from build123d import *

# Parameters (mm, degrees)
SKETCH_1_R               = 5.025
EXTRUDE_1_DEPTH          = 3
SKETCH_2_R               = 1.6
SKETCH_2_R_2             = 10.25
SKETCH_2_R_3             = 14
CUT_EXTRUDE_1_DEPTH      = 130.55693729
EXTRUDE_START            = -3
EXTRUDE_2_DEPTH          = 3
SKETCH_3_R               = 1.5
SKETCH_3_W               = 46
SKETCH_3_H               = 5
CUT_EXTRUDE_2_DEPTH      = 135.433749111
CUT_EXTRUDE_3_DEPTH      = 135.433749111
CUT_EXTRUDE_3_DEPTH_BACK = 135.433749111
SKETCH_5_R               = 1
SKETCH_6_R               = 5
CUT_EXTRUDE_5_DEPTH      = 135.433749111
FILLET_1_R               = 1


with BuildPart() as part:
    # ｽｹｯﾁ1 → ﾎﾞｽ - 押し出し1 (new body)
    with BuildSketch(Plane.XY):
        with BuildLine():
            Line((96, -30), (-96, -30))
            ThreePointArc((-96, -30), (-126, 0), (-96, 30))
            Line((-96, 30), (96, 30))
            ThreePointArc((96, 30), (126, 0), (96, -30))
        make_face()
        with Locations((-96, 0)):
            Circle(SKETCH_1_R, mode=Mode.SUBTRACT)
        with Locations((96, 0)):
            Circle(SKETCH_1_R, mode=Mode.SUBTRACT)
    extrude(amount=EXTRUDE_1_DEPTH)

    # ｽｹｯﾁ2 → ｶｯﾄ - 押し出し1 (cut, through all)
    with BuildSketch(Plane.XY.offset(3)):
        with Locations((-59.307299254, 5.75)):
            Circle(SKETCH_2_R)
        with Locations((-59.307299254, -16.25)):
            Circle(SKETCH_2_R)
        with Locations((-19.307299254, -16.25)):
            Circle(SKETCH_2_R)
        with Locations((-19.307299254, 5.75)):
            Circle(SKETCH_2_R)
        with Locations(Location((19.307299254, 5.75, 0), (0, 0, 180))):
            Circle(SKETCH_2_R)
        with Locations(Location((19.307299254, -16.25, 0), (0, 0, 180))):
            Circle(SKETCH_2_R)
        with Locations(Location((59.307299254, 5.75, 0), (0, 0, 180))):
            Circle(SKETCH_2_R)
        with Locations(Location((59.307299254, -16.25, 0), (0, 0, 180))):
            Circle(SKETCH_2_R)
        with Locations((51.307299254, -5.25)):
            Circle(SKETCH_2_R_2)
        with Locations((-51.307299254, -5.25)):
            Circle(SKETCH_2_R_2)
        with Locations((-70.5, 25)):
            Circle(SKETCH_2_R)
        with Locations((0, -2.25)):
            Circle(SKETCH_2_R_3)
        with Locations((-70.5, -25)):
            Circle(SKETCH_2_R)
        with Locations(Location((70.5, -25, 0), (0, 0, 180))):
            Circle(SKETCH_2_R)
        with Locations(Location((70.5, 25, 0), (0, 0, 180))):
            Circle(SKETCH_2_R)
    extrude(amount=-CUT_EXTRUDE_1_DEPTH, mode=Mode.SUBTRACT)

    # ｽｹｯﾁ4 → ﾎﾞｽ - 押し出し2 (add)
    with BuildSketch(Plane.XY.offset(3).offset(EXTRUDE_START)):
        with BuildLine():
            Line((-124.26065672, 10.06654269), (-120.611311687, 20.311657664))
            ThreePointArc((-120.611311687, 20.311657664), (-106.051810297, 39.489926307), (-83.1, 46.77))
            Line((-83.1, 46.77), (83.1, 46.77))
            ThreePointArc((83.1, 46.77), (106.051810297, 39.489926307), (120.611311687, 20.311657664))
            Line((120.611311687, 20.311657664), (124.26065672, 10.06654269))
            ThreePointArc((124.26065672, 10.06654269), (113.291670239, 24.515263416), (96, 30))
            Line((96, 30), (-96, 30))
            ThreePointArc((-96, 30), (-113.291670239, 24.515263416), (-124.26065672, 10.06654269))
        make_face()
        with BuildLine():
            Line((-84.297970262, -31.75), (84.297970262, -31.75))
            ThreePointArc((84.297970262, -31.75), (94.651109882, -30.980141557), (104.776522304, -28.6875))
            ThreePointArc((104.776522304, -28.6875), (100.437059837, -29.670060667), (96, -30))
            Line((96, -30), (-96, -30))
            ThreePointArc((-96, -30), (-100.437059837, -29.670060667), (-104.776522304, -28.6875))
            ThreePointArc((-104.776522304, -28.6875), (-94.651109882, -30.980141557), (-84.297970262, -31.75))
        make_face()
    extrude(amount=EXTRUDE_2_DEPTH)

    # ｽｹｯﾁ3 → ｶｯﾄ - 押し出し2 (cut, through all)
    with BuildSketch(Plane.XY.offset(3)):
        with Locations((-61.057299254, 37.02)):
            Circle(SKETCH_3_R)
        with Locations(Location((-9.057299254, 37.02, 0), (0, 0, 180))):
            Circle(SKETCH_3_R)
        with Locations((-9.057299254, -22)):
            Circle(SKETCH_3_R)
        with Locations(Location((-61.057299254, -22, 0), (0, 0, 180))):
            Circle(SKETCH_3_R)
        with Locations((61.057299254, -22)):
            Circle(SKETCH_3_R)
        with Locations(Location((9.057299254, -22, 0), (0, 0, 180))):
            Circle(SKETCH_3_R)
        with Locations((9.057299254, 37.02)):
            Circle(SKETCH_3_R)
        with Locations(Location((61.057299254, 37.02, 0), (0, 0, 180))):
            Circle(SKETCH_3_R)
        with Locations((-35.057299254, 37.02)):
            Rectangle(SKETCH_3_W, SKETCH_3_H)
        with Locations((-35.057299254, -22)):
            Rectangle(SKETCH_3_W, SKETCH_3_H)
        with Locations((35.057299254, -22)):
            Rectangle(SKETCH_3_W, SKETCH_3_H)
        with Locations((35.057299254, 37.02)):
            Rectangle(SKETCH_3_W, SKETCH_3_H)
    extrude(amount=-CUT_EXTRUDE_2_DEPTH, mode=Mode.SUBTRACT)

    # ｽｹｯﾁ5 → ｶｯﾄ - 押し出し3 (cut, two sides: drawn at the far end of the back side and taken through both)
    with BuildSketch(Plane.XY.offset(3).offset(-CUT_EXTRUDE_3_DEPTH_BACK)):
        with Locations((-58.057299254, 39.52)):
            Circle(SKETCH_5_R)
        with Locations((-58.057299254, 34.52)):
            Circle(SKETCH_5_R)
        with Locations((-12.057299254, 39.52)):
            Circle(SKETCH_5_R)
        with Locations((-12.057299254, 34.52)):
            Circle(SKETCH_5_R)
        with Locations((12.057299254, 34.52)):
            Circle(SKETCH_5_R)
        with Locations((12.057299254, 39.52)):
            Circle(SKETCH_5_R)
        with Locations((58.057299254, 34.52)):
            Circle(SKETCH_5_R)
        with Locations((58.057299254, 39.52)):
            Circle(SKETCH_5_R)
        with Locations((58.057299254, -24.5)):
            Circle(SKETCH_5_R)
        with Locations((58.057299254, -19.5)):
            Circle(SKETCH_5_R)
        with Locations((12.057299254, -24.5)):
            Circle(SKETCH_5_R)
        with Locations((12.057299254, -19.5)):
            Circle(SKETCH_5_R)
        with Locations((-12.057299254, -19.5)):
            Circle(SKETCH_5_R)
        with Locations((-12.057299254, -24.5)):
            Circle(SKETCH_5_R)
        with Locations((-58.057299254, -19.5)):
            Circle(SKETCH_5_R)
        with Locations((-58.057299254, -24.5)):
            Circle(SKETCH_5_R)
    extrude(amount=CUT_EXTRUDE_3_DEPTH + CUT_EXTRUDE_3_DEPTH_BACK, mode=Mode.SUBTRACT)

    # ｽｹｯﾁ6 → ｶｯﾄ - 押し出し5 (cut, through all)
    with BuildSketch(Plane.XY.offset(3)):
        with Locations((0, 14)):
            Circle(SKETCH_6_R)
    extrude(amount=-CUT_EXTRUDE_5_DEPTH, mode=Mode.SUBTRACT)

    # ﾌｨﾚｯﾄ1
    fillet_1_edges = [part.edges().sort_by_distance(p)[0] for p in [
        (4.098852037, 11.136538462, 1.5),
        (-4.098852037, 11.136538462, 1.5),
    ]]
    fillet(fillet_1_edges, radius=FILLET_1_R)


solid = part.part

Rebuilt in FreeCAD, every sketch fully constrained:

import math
import FreeCAD as App
import Part
import Sketcher
from FreeCAD import Vector


def edges_at(feature, points):
    """Names of the edges that pass closest to the given points."""
    edges = feature.Shape.Edges
    near = lambda p: min(range(len(edges)), key=lambda i: edges[i].distToShape(Part.Vertex(*p))[0])
    return sorted({f"Edge{near(p) + 1}" for p in points})

doc = App.newDocument("Part")
params = doc.addObject("Spreadsheet::Sheet", "Params")
for row, (alias, value) in enumerate([
    ("sketch1_radius", "30 mm"),
    ("sketch1_diameter", "10.05 mm"),
    ("sketch1_width", "192 mm"),
    ("pad1_length", "3 mm"),
    ("sketch2_diameter", "28 mm"),
    ("sketch2_diameter2", "3.2 mm"),
    ("sketch2_diameter3", "20.5 mm"),
    ("sketch3_radius", "30 mm"),
    ("sketch3_radius2", "70 mm"),
    ("sketch3_width", "192 mm"),
    ("sketch3_radius3", "39.82 mm"),
    ("sketch3_width2", "166.2 mm"),
    ("pad2_length", "3 mm"),
    ("sketch4_diameter", "3 mm"),
    ("sketch4_width", "46 mm"),
    ("sketch4_height", "5 mm"),
    ("sketch5_diameter", "2 mm"),
    ("sketch6_diameter", "10 mm"),
    ("fillet_radius", "1 mm"),
], start=1):
    params.set(f"A{row}", alias)
    params.set(f"B{row}", "=" + value)
    params.setAlias(f"B{row}", alias)

body = doc.addObject("PartDesign::Body", "Body")

# Sketch on XY plane
sketch1 = doc.addObject("Sketcher::SketchObject", "Sketch")
body.addObject(sketch1)
sketch1.AttachmentSupport = (doc.XY_Plane, [""])
sketch1.MapMode = "FlatFace"
sketch1.addGeometry(Part.LineSegment(Vector(-96, -30, 0), Vector(96, -30, 0)), False)
sketch1.addGeometry(Part.ArcOfCircle(Part.Circle(Vector(96, 0, 0), Vector(0, 0, 1), 30), math.radians(-90), math.radians(90)), False)
sketch1.addGeometry(Part.LineSegment(Vector(96, 30, 0), Vector(-96, 30, 0)), False)
sketch1.addGeometry(Part.ArcOfCircle(Part.Circle(Vector(-96, 0, 0), Vector(0, 0, 1), 30), math.radians(90), math.radians(270)), False)
sketch1.addGeometry(Part.Circle(Vector(96, 0, 0), Vector(0, 0, 1), 5), False)
sketch1.addGeometry(Part.Circle(Vector(-96, 0, 0), Vector(0, 0, 1), 5), False)
sketch1.addConstraint(Sketcher.Constraint("Tangent", 0, 2, 1, 1))
sketch1.addConstraint(Sketcher.Constraint("Tangent", 1, 2, 2, 1))
sketch1.addConstraint(Sketcher.Constraint("Tangent", 2, 2, 3, 1))
sketch1.addConstraint(Sketcher.Constraint("Tangent", 3, 2, 0, 1))
sketch1.addConstraint(Sketcher.Constraint("Horizontal", 0))
sketch1.addConstraint(Sketcher.Constraint("Horizontal", 2))
sketch1.addConstraint(Sketcher.Constraint("Coincident", 4, 3, 1, 3))
sketch1.addConstraint(Sketcher.Constraint("Coincident", 5, 3, 3, 3))
sketch1.addConstraint(Sketcher.Constraint("Equal", 4, 5))
sketch1.addConstraint(Sketcher.Constraint("Symmetric", 1, 3, 3, 3, -1, 1))
sketch1.addConstraint(Sketcher.Constraint("Radius", 1, 30.0))
sketch1.addConstraint(Sketcher.Constraint("Diameter", 4, 10.05))
sketch1.addConstraint(Sketcher.Constraint("DistanceX", 0, 1, 0, 2, 192.0))
sketch1.setExpression("Constraints[10]", "Params.sketch1_radius")
sketch1.setExpression("Constraints[11]", "Params.sketch1_diameter")
sketch1.setExpression("Constraints[12]", "Params.sketch1_width")
pad1 = doc.addObject("PartDesign::Pad", "Pad")
body.addObject(pad1)
pad1.Profile = sketch1
pad1.setExpression("Length", "Params.pad1_length")

# Sketch on XY plane
sketch2 = doc.addObject("Sketcher::SketchObject", "Sketch001")
body.addObject(sketch2)
sketch2.AttachmentSupport = (doc.XY_Plane, [""])
sketch2.MapMode = "FlatFace"
sketch2.AttachmentOffset = App.Placement(Vector(0, 0, 3), App.Rotation())
sketch2.addGeometry(Part.Circle(Vector(-59.3, 5.8, 0), Vector(0, 0, 1), 1.6), False)
sketch2.addGeometry(Part.Circle(Vector(-59.3, -16.2, 0), Vector(0, 0, 1), 1.6), False)
sketch2.addGeometry(Part.Circle(Vector(-19.3, -16.2, 0), Vector(0, 0, 1), 1.6), False)
sketch2.addGeometry(Part.Circle(Vector(-19.3, 5.8, 0), Vector(0, 0, 1), 1.6), False)
sketch2.addGeometry(Part.Circle(Vector(19.3, 5.8, 0), Vector(0, 0, 1), 1.6), False)
sketch2.addGeometry(Part.Circle(Vector(19.3, -16.2, 0), Vector(0, 0, 1), 1.6), False)
sketch2.addGeometry(Part.Circle(Vector(59.3, 5.8, 0), Vector(0, 0, 1), 1.6), False)
sketch2.addGeometry(Part.Circle(Vector(59.3, -16.2, 0), Vector(0, 0, 1), 1.6), False)
sketch2.addGeometry(Part.Circle(Vector(51.3, -5.2, 0), Vector(0, 0, 1), 10.2), False)
sketch2.addGeometry(Part.Circle(Vector(-51.3, -5.2, 0), Vector(0, 0, 1), 10.2), False)
sketch2.addGeometry(Part.Circle(Vector(-70.5, 25, 0), Vector(0, 0, 1), 1.6), False)
sketch2.addGeometry(Part.Circle(Vector(0, -2.2, 0), Vector(0, 0, 1), 14), False)
sketch2.addGeometry(Part.Circle(Vector(-70.5, -25, 0), Vector(0, 0, 1), 1.6), False)
sketch2.addGeometry(Part.Circle(Vector(70.5, -25, 0), Vector(0, 0, 1), 1.6), False)
sketch2.addGeometry(Part.Circle(Vector(70.5, 25, 0), Vector(0, 0, 1), 1.6), False)
sketch2.addConstraint(Sketcher.Constraint("Equal", 0, 1))
sketch2.addConstraint(Sketcher.Constraint("Equal", 1, 2))
sketch2.addConstraint(Sketcher.Constraint("Equal", 2, 3))
sketch2.addConstraint(Sketcher.Constraint("Equal", 3, 4))
sketch2.addConstraint(Sketcher.Constraint("Equal", 4, 5))
sketch2.addConstraint(Sketcher.Constraint("Equal", 5, 6))
sketch2.addConstraint(Sketcher.Constraint("Equal", 6, 7))
sketch2.addConstraint(Sketcher.Constraint("Equal", 8, 9))
sketch2.addConstraint(Sketcher.Constraint("Equal", 7, 10))
sketch2.addConstraint(Sketcher.Constraint("Equal", 10, 12))
sketch2.addConstraint(Sketcher.Constraint("Equal", 12, 13))
sketch2.addConstraint(Sketcher.Constraint("Equal", 13, 14))
sketch2.addConstraint(Sketcher.Constraint("Symmetric", 10, 3, 13, 3, -1, 1))
sketch2.addConstraint(Sketcher.Constraint("Symmetric", 12, 3, 14, 3, -1, 1))
sketch2.addConstraint(Sketcher.Constraint("Symmetric", 3, 3, 4, 3, -2))
sketch2.addConstraint(Sketcher.Constraint("Symmetric", 2, 3, 5, 3, -2))
sketch2.addConstraint(Sketcher.Constraint("Symmetric", 0, 3, 6, 3, -2))
sketch2.addConstraint(Sketcher.Constraint("Symmetric", 1, 3, 7, 3, -2))
sketch2.addConstraint(Sketcher.Constraint("Symmetric", 8, 3, 9, 3, -2))
sketch2.addConstraint(Sketcher.Constraint("Symmetric", 12, 3, 13, 3, -2))
sketch2.addConstraint(Sketcher.Constraint("PointOnObject", 11, 3, -2))
sketch2.addConstraint(Sketcher.Constraint("Horizontal", 1, 3, 2, 3))
sketch2.addConstraint(Sketcher.Constraint("Horizontal", 0, 3, 3, 3))
sketch2.addConstraint(Sketcher.Constraint("Vertical", 0, 3, 1, 3))
sketch2.addConstraint(Sketcher.Constraint("Vertical", 2, 3, 3, 3))
sketch2.addConstraint(Sketcher.Constraint("Diameter", 11, 28.0))
sketch2.addConstraint(Sketcher.Constraint("Diameter", 0, 3.2))
sketch2.addConstraint(Sketcher.Constraint("Diameter", 8, 20.5))
sketch2.addConstraint(Sketcher.Constraint("DistanceY", -1, 1, 10, 3, 25.0))
sketch2.addConstraint(Sketcher.Constraint("DistanceY", 1, 3, 0, 3, 22.0))
sketch2.addConstraint(Sketcher.Constraint("DistanceX", 1, 3, 2, 3, 40.0))
sketch2.addConstraint(Sketcher.Constraint("DistanceX", 8, 3, 6, 3, 8.0))
sketch2.addConstraint(Sketcher.Constraint("DistanceY", 8, 3, 6, 3, 11.0))
sketch2.addConstraint(Sketcher.Constraint("DistanceY", 11, 3, 3, 3, 8.0))
sketch2.addConstraint(Sketcher.Constraint("DistanceX", 10, 3, -1, 1, 70.5))
sketch2.addConstraint(Sketcher.Constraint("DistanceY", -1, 1, 0, 3, 5.75))
sketch2.addConstraint(Sketcher.Constraint("DistanceX", 0, 3, -1, 1, 59.307299))
sketch2.setExpression("Constraints[25]", "Params.sketch2_diameter")
sketch2.setExpression("Constraints[26]", "Params.sketch2_diameter2")
sketch2.setExpression("Constraints[27]", "Params.sketch2_diameter3")
pocket1 = doc.addObject("PartDesign::Pocket", "Pocket")
body.addObject(pocket1)
pocket1.Profile = sketch2
pocket1.Type = "ThroughAll"

# Sketch on XY plane
sketch3 = doc.addObject("Sketcher::SketchObject", "Sketch002")
body.addObject(sketch3)
sketch3.AttachmentSupport = (doc.XY_Plane, [""])
sketch3.MapMode = "FlatFace"
sketch3.addGeometry(Part.LineSegment(Vector(-121, 20, 0), Vector(-124, 10, 0)), False)
sketch3.addGeometry(Part.ArcOfCircle(Part.Circle(Vector(-96, 0, 0), Vector(0, 0, 1), 30), math.radians(90), math.radians(160)), False)
sketch3.addGeometry(Part.LineSegment(Vector(-96, 30, 0), Vector(96, 30, 0)), False)
sketch3.addGeometry(Part.ArcOfCircle(Part.Circle(Vector(96, 0, 0), Vector(0, 0, 1), 30), math.radians(20), math.radians(90)), False)
sketch3.addGeometry(Part.LineSegment(Vector(124, 10, 0), Vector(121, 20, 0)), False)
sketch3.addGeometry(Part.ArcOfCircle(Part.Circle(Vector(83, 7, 0), Vector(0, 0, 1), 40), math.radians(20), math.radians(90)), False)
sketch3.addGeometry(Part.LineSegment(Vector(83, 47, 0), Vector(-83, 47, 0)), False)
sketch3.addGeometry(Part.ArcOfCircle(Part.Circle(Vector(-83, 7, 0), Vector(0, 0, 1), 40), math.radians(90), math.radians(160)), False)
sketch3.addGeometry(Part.LineSegment(Vector(-84, -32, 0), Vector(84, -32, 0)), False)
sketch3.addGeometry(Part.ArcOfCircle(Part.Circle(Vector(84, 38, 0), Vector(0, 0, 1), 70), math.radians(-90), math.radians(-72.99)), False)
sketch3.addGeometry(Part.ArcOfCircle(Part.Circle(Vector(96, 0, 0), Vector(0, 0, 1), 30), math.radians(-90), math.radians(-72.99)), False)
sketch3.addGeometry(Part.LineSegment(Vector(96, -30, 0), Vector(-96, -30, 0)), False)
sketch3.addGeometry(Part.ArcOfCircle(Part.Circle(Vector(-96, 0, 0), Vector(0, 0, 1), 30), math.radians(-107.01), math.radians(-90)), False)
sketch3.addGeometry(Part.ArcOfCircle(Part.Circle(Vector(-84, 38, 0), Vector(0, 0, 1), 70), math.radians(-107.01), math.radians(-90)), False)
sketch3.addConstraint(Sketcher.Constraint("Tangent", 0, 2, 1, 2))
sketch3.addConstraint(Sketcher.Constraint("Tangent", 1, 1, 2, 1))
sketch3.addConstraint(Sketcher.Constraint("Tangent", 2, 2, 3, 2))
sketch3.addConstraint(Sketcher.Constraint("Tangent", 3, 1, 4, 1))
sketch3.addConstraint(Sketcher.Constraint("Tangent", 4, 2, 5, 1))
sketch3.addConstraint(Sketcher.Constraint("Tangent", 5, 2, 6, 1))
sketch3.addConstraint(Sketcher.Constraint("Tangent", 6, 2, 7, 1))
sketch3.addConstraint(Sketcher.Constraint("Tangent", 7, 2, 0, 1))
sketch3.addConstraint(Sketcher.Constraint("Tangent", 8, 2, 9, 1))
sketch3.addConstraint(Sketcher.Constraint("Tangent", 9, 2, 10, 2))
sketch3.addConstraint(Sketcher.Constraint("Tangent", 10, 1, 11, 1))
sketch3.addConstraint(Sketcher.Constraint("Tangent", 11, 2, 12, 2))
sketch3.addConstraint(Sketcher.Constraint("Tangent", 12, 1, 13, 1))
sketch3.addConstraint(Sketcher.Constraint("Tangent", 13, 2, 8, 1))
sketch3.addConstraint(Sketcher.Constraint("Horizontal", 2))
sketch3.addConstraint(Sketcher.Constraint("Horizontal", 6))
sketch3.addConstraint(Sketcher.Constraint("Horizontal", 8))
sketch3.addConstraint(Sketcher.Constraint("Horizontal", 11))
sketch3.addConstraint(Sketcher.Constraint("Coincident", 10, 3, 3, 3))
sketch3.addConstraint(Sketcher.Constraint("Coincident", 12, 3, 1, 3))
sketch3.addConstraint(Sketcher.Constraint("Equal", 1, 3))
sketch3.addConstraint(Sketcher.Constraint("Equal", 5, 7))
sketch3.addConstraint(Sketcher.Constraint("Equal", 3, 10))
sketch3.addConstraint(Sketcher.Constraint("Equal", 9, 13))
sketch3.addConstraint(Sketcher.Constraint("Symmetric", 1, 3, 3, 3, -1, 1))
sketch3.addConstraint(Sketcher.Constraint("Horizontal", 0, 2, 3, 1))
sketch3.addConstraint(Sketcher.Constraint("Radius", 1, 30.0))
sketch3.addConstraint(Sketcher.Constraint("Radius", 9, 70.0))
sketch3.addConstraint(Sketcher.Constraint("DistanceX", 2, 1, 2, 2, 192.0))
sketch3.addConstraint(Sketcher.Constraint("Radius", 5, 39.82))
sketch3.addConstraint(Sketcher.Constraint("DistanceX", 6, 2, 6, 1, 166.2))
sketch3.addConstraint(Sketcher.Constraint("DistanceY", 5, 3, 9, 3, 31.3))
sketch3.addConstraint(Sketcher.Constraint("DistanceY", -1, 1, 5, 3, 6.95))
sketch3.setExpression("Constraints[26]", "Params.sketch3_radius")
sketch3.setExpression("Constraints[27]", "Params.sketch3_radius2")
sketch3.setExpression("Constraints[28]", "Params.sketch3_width")
sketch3.setExpression("Constraints[29]", "Params.sketch3_radius3")
sketch3.setExpression("Constraints[30]", "Params.sketch3_width2")
pad2 = doc.addObject("PartDesign::Pad", "Pad001")
body.addObject(pad2)
pad2.Profile = sketch3
pad2.setExpression("Length", "Params.pad2_length")

# Sketch on XY plane
sketch4 = doc.addObject("Sketcher::SketchObject", "Sketch003")
body.addObject(sketch4)
sketch4.AttachmentSupport = (doc.XY_Plane, [""])
sketch4.MapMode = "FlatFace"
sketch4.AttachmentOffset = App.Placement(Vector(0, 0, 3), App.Rotation())
sketch4.addGeometry(Part.Circle(Vector(-61.1, 37, 0), Vector(0, 0, 1), 1.5), False)
sketch4.addGeometry(Part.Circle(Vector(-9.1, 37, 0), Vector(0, 0, 1), 1.5), False)
sketch4.addGeometry(Part.Circle(Vector(-9.1, -22, 0), Vector(0, 0, 1), 1.5), False)
sketch4.addGeometry(Part.Circle(Vector(-61.1, -22, 0), Vector(0, 0, 1), 1.5), False)
sketch4.addGeometry(Part.Circle(Vector(61.1, -22, 0), Vector(0, 0, 1), 1.5), False)
sketch4.addGeometry(Part.Circle(Vector(9.1, -22, 0), Vector(0, 0, 1), 1.5), False)
sketch4.addGeometry(Part.Circle(Vector(9.1, 37, 0), Vector(0, 0, 1), 1.5), False)
sketch4.addGeometry(Part.Circle(Vector(61.1, 37, 0), Vector(0, 0, 1), 1.5), False)
sketch4.addGeometry(Part.LineSegment(Vector(-58.1, 39.5, 0), Vector(-58.1, 34.5, 0)), False)
sketch4.addGeometry(Part.LineSegment(Vector(-58.1, 34.5, 0), Vector(-12.1, 34.5, 0)), False)
sketch4.addGeometry(Part.LineSegment(Vector(-12.1, 34.5, 0), Vector(-12.1, 39.5, 0)), False)
sketch4.addGeometry(Part.LineSegment(Vector(-12.1, 39.5, 0), Vector(-58.1, 39.5, 0)), False)
sketch4.addGeometry(Part.LineSegment(Vector(-58.1, -19.5, 0), Vector(-58.1, -24.5, 0)), False)
sketch4.addGeometry(Part.LineSegment(Vector(-58.1, -24.5, 0), Vector(-12.1, -24.5, 0)), False)
sketch4.addGeometry(Part.LineSegment(Vector(-12.1, -24.5, 0), Vector(-12.1, -19.5, 0)), False)
sketch4.addGeometry(Part.LineSegment(Vector(-12.1, -19.5, 0), Vector(-58.1, -19.5, 0)), False)
sketch4.addGeometry(Part.LineSegment(Vector(12.1, -19.5, 0), Vector(12.1, -24.5, 0)), False)
sketch4.addGeometry(Part.LineSegment(Vector(12.1, -24.5, 0), Vector(58.1, -24.5, 0)), False)
sketch4.addGeometry(Part.LineSegment(Vector(58.1, -24.5, 0), Vector(58.1, -19.5, 0)), False)
sketch4.addGeometry(Part.LineSegment(Vector(58.1, -19.5, 0), Vector(12.1, -19.5, 0)), False)
sketch4.addGeometry(Part.LineSegment(Vector(12.1, 39.5, 0), Vector(12.1, 34.5, 0)), False)
sketch4.addGeometry(Part.LineSegment(Vector(12.1, 34.5, 0), Vector(58.1, 34.5, 0)), False)
sketch4.addGeometry(Part.LineSegment(Vector(58.1, 34.5, 0), Vector(58.1, 39.5, 0)), False)
sketch4.addGeometry(Part.LineSegment(Vector(58.1, 39.5, 0), Vector(12.1, 39.5, 0)), False)
sketch4.addConstraint(Sketcher.Constraint("Coincident", 8, 2, 9, 1))
sketch4.addConstraint(Sketcher.Constraint("Coincident", 9, 2, 10, 1))
sketch4.addConstraint(Sketcher.Constraint("Coincident", 10, 2, 11, 1))
sketch4.addConstraint(Sketcher.Constraint("Coincident", 11, 2, 8, 1))
sketch4.addConstraint(Sketcher.Constraint("Coincident", 12, 2, 13, 1))
sketch4.addConstraint(Sketcher.Constraint("Coincident", 13, 2, 14, 1))
sketch4.addConstraint(Sketcher.Constraint("Coincident", 14, 2, 15, 1))
sketch4.addConstraint(Sketcher.Constraint("Coincident", 15, 2, 12, 1))
sketch4.addConstraint(Sketcher.Constraint("Coincident", 16, 2, 17, 1))
sketch4.addConstraint(Sketcher.Constraint("Coincident", 17, 2, 18, 1))
sketch4.addConstraint(Sketcher.Constraint("Coincident", 18, 2, 19, 1))
sketch4.addConstraint(Sketcher.Constraint("Coincident", 19, 2, 16, 1))
sketch4.addConstraint(Sketcher.Constraint("Coincident", 20, 2, 21, 1))
sketch4.addConstraint(Sketcher.Constraint("Coincident", 21, 2, 22, 1))
sketch4.addConstraint(Sketcher.Constraint("Coincident", 22, 2, 23, 1))
sketch4.addConstraint(Sketcher.Constraint("Coincident", 23, 2, 20, 1))
sketch4.addConstraint(Sketcher.Constraint("Vertical", 8))
sketch4.addConstraint(Sketcher.Constraint("Horizontal", 9))
sketch4.addConstraint(Sketcher.Constraint("Vertical", 10))
sketch4.addConstraint(Sketcher.Constraint("Horizontal", 11))
sketch4.addConstraint(Sketcher.Constraint("Vertical", 12))
sketch4.addConstraint(Sketcher.Constraint("Horizontal", 13))
sketch4.addConstraint(Sketcher.Constraint("Vertical", 14))
sketch4.addConstraint(Sketcher.Constraint("Horizontal", 15))
sketch4.addConstraint(Sketcher.Constraint("Vertical", 16))
sketch4.addConstraint(Sketcher.Constraint("Horizontal", 17))
sketch4.addConstraint(Sketcher.Constraint("Vertical", 18))
sketch4.addConstraint(Sketcher.Constraint("Horizontal", 19))
sketch4.addConstraint(Sketcher.Constraint("Vertical", 20))
sketch4.addConstraint(Sketcher.Constraint("Horizontal", 21))
sketch4.addConstraint(Sketcher.Constraint("Vertical", 22))
sketch4.addConstraint(Sketcher.Constraint("Horizontal", 23))
sketch4.addConstraint(Sketcher.Constraint("Equal", 0, 1))
sketch4.addConstraint(Sketcher.Constraint("Equal", 1, 2))
sketch4.addConstraint(Sketcher.Constraint("Equal", 2, 3))
sketch4.addConstraint(Sketcher.Constraint("Equal", 3, 4))
sketch4.addConstraint(Sketcher.Constraint("Equal", 4, 5))
sketch4.addConstraint(Sketcher.Constraint("Equal", 5, 6))
sketch4.addConstraint(Sketcher.Constraint("Equal", 6, 7))
sketch4.addConstraint(Sketcher.Constraint("Symmetric", 3, 3, 4, 3, -2))
sketch4.addConstraint(Sketcher.Constraint("Symmetric", 2, 3, 5, 3, -2))
sketch4.addConstraint(Sketcher.Constraint("Symmetric", 1, 3, 6, 3, -2))
sketch4.addConstraint(Sketcher.Constraint("Symmetric", 0, 3, 7, 3, -2))
sketch4.addConstraint(Sketcher.Constraint("Symmetric", 13, 2, 16, 2, -2))
sketch4.addConstraint(Sketcher.Constraint("Symmetric", 15, 2, 18, 2, -2))
sketch4.addConstraint(Sketcher.Constraint("Symmetric", 9, 2, 20, 2, -2))
sketch4.addConstraint(Sketcher.Constraint("Symmetric", 11, 2, 22, 2, -2))
sketch4.addConstraint(Sketcher.Constraint("Horizontal", 0, 3, 1, 3))
sketch4.addConstraint(Sketcher.Constraint("Horizontal", 2, 3, 3, 3))
sketch4.addConstraint(Sketcher.Constraint("Vertical", 1, 3, 2, 3))
sketch4.addConstraint(Sketcher.Constraint("Vertical", 0, 3, 3, 3))
sketch4.addConstraint(Sketcher.Constraint("Vertical", 11, 2, 12, 2))
sketch4.addConstraint(Sketcher.Constraint("Vertical", 10, 2, 13, 2))
sketch4.addConstraint(Sketcher.Constraint("Equal", 10, 12))
sketch4.addConstraint(Sketcher.Constraint("Diameter", 0, 3.0))
sketch4.addConstraint(Sketcher.Constraint("DistanceX", 9, 1, 9, 2, 46.0))
sketch4.addConstraint(Sketcher.Constraint("DistanceY", 8, 2, 8, 1, 5.0))
sketch4.addConstraint(Sketcher.Constraint("DistanceY", 2, 3, -1, 1, 22.0))
sketch4.addConstraint(Sketcher.Constraint("DistanceX", 0, 3, 1, 3, 52.0))
sketch4.addConstraint(Sketcher.Constraint("DistanceX", 0, 3, 8, 2, 3.0))
sketch4.addConstraint(Sketcher.Constraint("DistanceY", 12, 2, -1, 1, 24.5))
sketch4.addConstraint(Sketcher.Constraint("DistanceY", 8, 2, 0, 3, 2.5))
sketch4.addConstraint(Sketcher.Constraint("DistanceY", -1, 1, 0, 3, 37.02))
sketch4.addConstraint(Sketcher.Constraint("DistanceX", 0, 3, -1, 1, 61.057299))
sketch4.setExpression("Constraints[54]", "Params.sketch4_diameter")
sketch4.setExpression("Constraints[55]", "Params.sketch4_width")
sketch4.setExpression("Constraints[56]", "Params.sketch4_height")
pocket2 = doc.addObject("PartDesign::Pocket", "Pocket001")
body.addObject(pocket2)
pocket2.Profile = sketch4
pocket2.Type = "ThroughAll"

# Sketch on XY plane
sketch5 = doc.addObject("Sketcher::SketchObject", "Sketch004")
body.addObject(sketch5)
sketch5.AttachmentSupport = (doc.XY_Plane, [""])
sketch5.MapMode = "FlatFace"
sketch5.AttachmentOffset = App.Placement(Vector(0, 0, 3), App.Rotation())
sketch5.addGeometry(Part.Circle(Vector(-58.1, 39.5, 0), Vector(0, 0, 1), 1), False)
sketch5.addGeometry(Part.Circle(Vector(-58.1, 34.5, 0), Vector(0, 0, 1), 1), False)
sketch5.addGeometry(Part.Circle(Vector(-12.1, 39.5, 0), Vector(0, 0, 1), 1), False)
sketch5.addGeometry(Part.Circle(Vector(-12.1, 34.5, 0), Vector(0, 0, 1), 1), False)
sketch5.addGeometry(Part.Circle(Vector(12.1, 34.5, 0), Vector(0, 0, 1), 1), False)
sketch5.addGeometry(Part.Circle(Vector(12.1, 39.5, 0), Vector(0, 0, 1), 1), False)
sketch5.addGeometry(Part.Circle(Vector(58.1, 34.5, 0), Vector(0, 0, 1), 1), False)
sketch5.addGeometry(Part.Circle(Vector(58.1, 39.5, 0), Vector(0, 0, 1), 1), False)
sketch5.addGeometry(Part.Circle(Vector(58.1, -24.5, 0), Vector(0, 0, 1), 1), False)
sketch5.addGeometry(Part.Circle(Vector(58.1, -19.5, 0), Vector(0, 0, 1), 1), False)
sketch5.addGeometry(Part.Circle(Vector(12.1, -24.5, 0), Vector(0, 0, 1), 1), False)
sketch5.addGeometry(Part.Circle(Vector(12.1, -19.5, 0), Vector(0, 0, 1), 1), False)
sketch5.addGeometry(Part.Circle(Vector(-12.1, -19.5, 0), Vector(0, 0, 1), 1), False)
sketch5.addGeometry(Part.Circle(Vector(-12.1, -24.5, 0), Vector(0, 0, 1), 1), False)
sketch5.addGeometry(Part.Circle(Vector(-58.1, -19.5, 0), Vector(0, 0, 1), 1), False)
sketch5.addGeometry(Part.Circle(Vector(-58.1, -24.5, 0), Vector(0, 0, 1), 1), False)
sketch5.addConstraint(Sketcher.Constraint("Equal", 0, 1))
sketch5.addConstraint(Sketcher.Constraint("Equal", 1, 2))
sketch5.addConstraint(Sketcher.Constraint("Equal", 2, 3))
sketch5.addConstraint(Sketcher.Constraint("Equal", 3, 4))
sketch5.addConstraint(Sketcher.Constraint("Equal", 4, 5))
sketch5.addConstraint(Sketcher.Constraint("Equal", 5, 6))
sketch5.addConstraint(Sketcher.Constraint("Equal", 6, 7))
sketch5.addConstraint(Sketcher.Constraint("Equal", 7, 8))
sketch5.addConstraint(Sketcher.Constraint("Equal", 8, 9))
sketch5.addConstraint(Sketcher.Constraint("Equal", 9, 10))
sketch5.addConstraint(Sketcher.Constraint("Equal", 10, 11))
sketch5.addConstraint(Sketcher.Constraint("Equal", 11, 12))
sketch5.addConstraint(Sketcher.Constraint("Equal", 12, 13))
sketch5.addConstraint(Sketcher.Constraint("Equal", 13, 14))
sketch5.addConstraint(Sketcher.Constraint("Equal", 14, 15))
sketch5.addConstraint(Sketcher.Constraint("Symmetric", 3, 3, 4, 3, -2))
sketch5.addConstraint(Sketcher.Constraint("Symmetric", 2, 3, 5, 3, -2))
sketch5.addConstraint(Sketcher.Constraint("Symmetric", 1, 3, 6, 3, -2))
sketch5.addConstraint(Sketcher.Constraint("Symmetric", 0, 3, 7, 3, -2))
sketch5.addConstraint(Sketcher.Constraint("Symmetric", 11, 3, 12, 3, -2))
sketch5.addConstraint(Sketcher.Constraint("Symmetric", 10, 3, 13, 3, -2))
sketch5.addConstraint(Sketcher.Constraint("Symmetric", 9, 3, 14, 3, -2))
sketch5.addConstraint(Sketcher.Constraint("Symmetric", 8, 3, 15, 3, -2))
sketch5.addConstraint(Sketcher.Constraint("Horizontal", 0, 3, 2, 3))
sketch5.addConstraint(Sketcher.Constraint("Horizontal", 1, 3, 3, 3))
sketch5.addConstraint(Sketcher.Constraint("Horizontal", 8, 3, 10, 3))
sketch5.addConstraint(Sketcher.Constraint("Horizontal", 9, 3, 11, 3))
sketch5.addConstraint(Sketcher.Constraint("Vertical", 0, 3, 1, 3))
sketch5.addConstraint(Sketcher.Constraint("Vertical", 2, 3, 3, 3))
sketch5.addConstraint(Sketcher.Constraint("Vertical", 7, 3, 8, 3))
sketch5.addConstraint(Sketcher.Constraint("Vertical", 8, 3, 9, 3))
sketch5.addConstraint(Sketcher.Constraint("Vertical", 5, 3, 10, 3))
sketch5.addConstraint(Sketcher.Constraint("Vertical", 10, 3, 11, 3))
sketch5.addConstraint(Sketcher.Constraint("Diameter", 0, 2.0))
sketch5.addConstraint(Sketcher.Constraint("DistanceY", 1, 3, 0, 3, 5.0))
sketch5.addConstraint(Sketcher.Constraint("DistanceX", 0, 3, 2, 3, 46.0))
sketch5.addConstraint(Sketcher.Constraint("DistanceY", 8, 3, 9, 3, 5.0))
sketch5.addConstraint(Sketcher.Constraint("DistanceY", 8, 3, -1, 1, 24.5))
sketch5.addConstraint(Sketcher.Constraint("DistanceY", -1, 1, 0, 3, 39.52))
sketch5.addConstraint(Sketcher.Constraint("DistanceX", 0, 3, -1, 1, 58.057299))
sketch5.setExpression("Constraints[33]", "Params.sketch5_diameter")
pocket3 = doc.addObject("PartDesign::Pocket", "Pocket002")
body.addObject(pocket3)
pocket3.Profile = sketch5
pocket3.Type = "ThroughAll"
pocket3.Midplane = True

# Sketch on XY plane
sketch6 = doc.addObject("Sketcher::SketchObject", "Sketch005")
body.addObject(sketch6)
sketch6.AttachmentSupport = (doc.XY_Plane, [""])
sketch6.MapMode = "FlatFace"
sketch6.AttachmentOffset = App.Placement(Vector(0, 0, 3), App.Rotation())
sketch6.addGeometry(Part.Circle(Vector(0, 14, 0), Vector(0, 0, 1), 5), False)
sketch6.addConstraint(Sketcher.Constraint("PointOnObject", 0, 3, -2))
sketch6.addConstraint(Sketcher.Constraint("Diameter", 0, 10.0))
sketch6.addConstraint(Sketcher.Constraint("DistanceY", -1, 1, 0, 3, 14.0))
sketch6.setExpression("Constraints[1]", "Params.sketch6_diameter")
pocket4 = doc.addObject("PartDesign::Pocket", "Pocket003")
body.addObject(pocket4)
pocket4.Profile = sketch6
pocket4.Type = "ThroughAll"
doc.recompute()

fillet = doc.addObject("PartDesign::Fillet", "Fillet")
body.addObject(fillet)
fillet.Base = (pocket4, edges_at(pocket4, [(4.099, 11.137, 1.5), (-4.099, 11.137, 1.5)]))
fillet.setExpression("Radius", "Params.fillet_radius")

doc.recompute()
